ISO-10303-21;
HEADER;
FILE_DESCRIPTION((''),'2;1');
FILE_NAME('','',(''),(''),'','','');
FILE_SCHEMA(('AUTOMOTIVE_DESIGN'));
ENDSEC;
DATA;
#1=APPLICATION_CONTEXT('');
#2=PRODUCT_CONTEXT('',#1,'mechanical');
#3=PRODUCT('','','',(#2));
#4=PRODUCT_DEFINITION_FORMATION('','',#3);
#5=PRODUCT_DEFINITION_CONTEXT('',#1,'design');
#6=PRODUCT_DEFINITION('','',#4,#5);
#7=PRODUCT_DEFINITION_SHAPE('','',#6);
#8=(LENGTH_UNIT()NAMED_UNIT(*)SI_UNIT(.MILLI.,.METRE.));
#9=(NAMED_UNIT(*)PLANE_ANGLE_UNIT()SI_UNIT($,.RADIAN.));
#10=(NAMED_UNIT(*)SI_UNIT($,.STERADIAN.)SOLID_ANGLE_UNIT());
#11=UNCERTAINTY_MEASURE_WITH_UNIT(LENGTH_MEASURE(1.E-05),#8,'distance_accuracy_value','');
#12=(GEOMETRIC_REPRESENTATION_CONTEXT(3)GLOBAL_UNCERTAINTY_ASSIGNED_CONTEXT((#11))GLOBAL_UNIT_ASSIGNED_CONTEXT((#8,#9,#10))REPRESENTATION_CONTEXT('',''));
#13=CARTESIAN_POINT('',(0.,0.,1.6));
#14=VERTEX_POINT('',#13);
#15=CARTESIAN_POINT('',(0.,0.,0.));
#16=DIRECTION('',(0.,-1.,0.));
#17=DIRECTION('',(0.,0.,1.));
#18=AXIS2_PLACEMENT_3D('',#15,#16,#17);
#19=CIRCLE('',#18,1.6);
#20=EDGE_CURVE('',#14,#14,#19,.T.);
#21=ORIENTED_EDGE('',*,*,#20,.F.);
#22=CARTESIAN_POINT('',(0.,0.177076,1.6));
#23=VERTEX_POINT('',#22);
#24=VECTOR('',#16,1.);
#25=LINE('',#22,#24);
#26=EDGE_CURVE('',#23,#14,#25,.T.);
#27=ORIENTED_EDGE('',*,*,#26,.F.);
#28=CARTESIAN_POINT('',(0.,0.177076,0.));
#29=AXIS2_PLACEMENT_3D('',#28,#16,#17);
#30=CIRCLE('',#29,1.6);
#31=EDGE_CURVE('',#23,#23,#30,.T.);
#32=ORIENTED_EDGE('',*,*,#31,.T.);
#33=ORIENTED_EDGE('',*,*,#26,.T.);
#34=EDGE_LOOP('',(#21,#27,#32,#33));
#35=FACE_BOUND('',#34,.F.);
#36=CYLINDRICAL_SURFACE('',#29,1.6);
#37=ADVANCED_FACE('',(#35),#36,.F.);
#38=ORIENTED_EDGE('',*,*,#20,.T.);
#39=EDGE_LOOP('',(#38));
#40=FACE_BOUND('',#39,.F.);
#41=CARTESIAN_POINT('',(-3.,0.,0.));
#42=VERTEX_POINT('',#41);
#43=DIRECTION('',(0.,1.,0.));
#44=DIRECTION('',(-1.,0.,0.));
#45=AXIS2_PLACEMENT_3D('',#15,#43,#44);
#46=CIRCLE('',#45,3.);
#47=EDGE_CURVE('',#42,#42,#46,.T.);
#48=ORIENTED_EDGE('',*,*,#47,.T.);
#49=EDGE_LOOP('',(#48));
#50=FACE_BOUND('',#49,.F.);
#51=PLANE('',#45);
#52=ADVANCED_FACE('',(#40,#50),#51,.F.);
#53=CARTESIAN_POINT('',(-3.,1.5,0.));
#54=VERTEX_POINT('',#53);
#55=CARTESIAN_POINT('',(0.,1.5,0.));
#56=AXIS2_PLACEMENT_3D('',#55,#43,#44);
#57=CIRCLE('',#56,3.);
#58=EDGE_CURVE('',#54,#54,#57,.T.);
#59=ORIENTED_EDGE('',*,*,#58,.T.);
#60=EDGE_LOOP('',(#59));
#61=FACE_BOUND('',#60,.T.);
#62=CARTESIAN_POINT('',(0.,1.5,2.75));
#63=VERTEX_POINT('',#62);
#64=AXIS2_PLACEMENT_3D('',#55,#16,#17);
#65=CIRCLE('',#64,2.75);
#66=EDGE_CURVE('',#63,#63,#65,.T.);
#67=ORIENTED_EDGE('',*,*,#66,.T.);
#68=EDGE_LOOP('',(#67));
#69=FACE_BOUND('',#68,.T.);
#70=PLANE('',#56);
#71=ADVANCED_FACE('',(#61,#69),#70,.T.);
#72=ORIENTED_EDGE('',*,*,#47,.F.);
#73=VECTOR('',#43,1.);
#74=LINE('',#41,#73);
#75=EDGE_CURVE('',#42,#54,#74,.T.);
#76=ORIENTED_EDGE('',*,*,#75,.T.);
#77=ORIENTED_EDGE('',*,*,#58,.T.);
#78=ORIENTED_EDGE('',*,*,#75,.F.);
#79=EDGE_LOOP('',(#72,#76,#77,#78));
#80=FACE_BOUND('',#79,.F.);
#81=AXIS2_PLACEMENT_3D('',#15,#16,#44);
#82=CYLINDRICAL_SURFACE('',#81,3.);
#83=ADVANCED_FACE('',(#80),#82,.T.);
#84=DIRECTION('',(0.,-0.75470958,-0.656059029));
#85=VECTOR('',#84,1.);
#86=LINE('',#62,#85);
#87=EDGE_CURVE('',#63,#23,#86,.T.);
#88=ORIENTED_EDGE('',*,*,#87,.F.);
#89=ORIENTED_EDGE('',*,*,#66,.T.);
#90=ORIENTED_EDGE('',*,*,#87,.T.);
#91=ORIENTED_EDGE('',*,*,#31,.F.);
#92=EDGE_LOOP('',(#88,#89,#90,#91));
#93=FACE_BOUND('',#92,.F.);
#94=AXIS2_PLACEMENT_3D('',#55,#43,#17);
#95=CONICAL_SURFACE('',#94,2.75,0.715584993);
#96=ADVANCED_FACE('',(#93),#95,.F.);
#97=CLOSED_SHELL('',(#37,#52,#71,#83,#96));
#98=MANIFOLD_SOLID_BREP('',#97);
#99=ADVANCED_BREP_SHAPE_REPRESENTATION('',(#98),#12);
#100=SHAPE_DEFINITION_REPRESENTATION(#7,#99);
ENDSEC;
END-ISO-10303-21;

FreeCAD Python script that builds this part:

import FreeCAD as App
import Part
import Sketcher
Q = App.Units.Quantity

doc = App.newDocument("Part")
params = doc.addObject("Spreadsheet::Sheet", "Params")
for row, (alias, value) in enumerate([
    ("sketch1_diameter", "6 mm"),
    ("pad1_length", "1.5 mm"),
    ("sketch2_diameter", "3.2 mm"),
    ("hole_diameter", "3.2 mm"),
    ("hole_csink_diameter", "5.5 mm"),
], start=1):
    params.set(f"A{row}", alias)
    params.set(f"B{row}", "=" + value)
    params.setAlias(f"B{row}", alias)

body = doc.addObject("PartDesign::Body", "Body")

# Sketch on XZ plane
sketch1 = doc.addObject("Sketcher::SketchObject", "Sketch")
body.addObject(sketch1)
sketch1.AttachmentSupport = (doc.XZ_Plane, [""])
sketch1.MapMode = "FlatFace"
sketch1.addGeometry(Part.Circle(App.Vector(0, 0, 0), App.Vector(0, 0, 1), 3), False)
sketch1.addConstraint([
    Sketcher.Constraint("Coincident", 0, 3, -1, 1),
    Sketcher.Constraint("Diameter", 0, Q("6 mm")),
])
sketch1.setExpression("Constraints[1]", "Params.sketch1_diameter")
pad1 = doc.addObject("PartDesign::Pad", "Pad")
body.addObject(pad1)
pad1.Profile = sketch1
pad1.setExpression("Length", "Params.pad1_length")
pad1.Reversed = True

# Sketch on XZ plane
sketch2 = doc.addObject("Sketcher::SketchObject", "Sketch001")
body.addObject(sketch2)
sketch2.AttachmentSupport = (doc.XZ_Plane, [""])
sketch2.MapMode = "FlatFace"
sketch2.AttachmentOffset = App.Placement(App.Vector(0, 0, -1.5), App.Rotation())
sketch2.addGeometry(Part.Circle(App.Vector(0, 0, 0), App.Vector(0, 0, 1), 1.6), False)
sketch2.addConstraint([
    Sketcher.Constraint("Coincident", 0, 3, -1, 1),
    Sketcher.Constraint("Diameter", 0, Q("3.2 mm")),
])
sketch2.setExpression("Constraints[1]", "Params.sketch2_diameter")
doc.recompute()
hole = doc.addObject("PartDesign::Hole", "Hole")
body.addObject(hole)
hole.Profile = sketch2
hole.ThreadType = "None"
hole.setExpression("Diameter", "Params.hole_diameter")
hole.DepthType = "ThroughAll"
hole.HoleCutType = "Countersink"
hole.setExpression("HoleCutDiameter", "Params.hole_csink_diameter")
hole.HoleCutCountersinkAngle = 82
hole.Reversed = True

doc.recompute()
